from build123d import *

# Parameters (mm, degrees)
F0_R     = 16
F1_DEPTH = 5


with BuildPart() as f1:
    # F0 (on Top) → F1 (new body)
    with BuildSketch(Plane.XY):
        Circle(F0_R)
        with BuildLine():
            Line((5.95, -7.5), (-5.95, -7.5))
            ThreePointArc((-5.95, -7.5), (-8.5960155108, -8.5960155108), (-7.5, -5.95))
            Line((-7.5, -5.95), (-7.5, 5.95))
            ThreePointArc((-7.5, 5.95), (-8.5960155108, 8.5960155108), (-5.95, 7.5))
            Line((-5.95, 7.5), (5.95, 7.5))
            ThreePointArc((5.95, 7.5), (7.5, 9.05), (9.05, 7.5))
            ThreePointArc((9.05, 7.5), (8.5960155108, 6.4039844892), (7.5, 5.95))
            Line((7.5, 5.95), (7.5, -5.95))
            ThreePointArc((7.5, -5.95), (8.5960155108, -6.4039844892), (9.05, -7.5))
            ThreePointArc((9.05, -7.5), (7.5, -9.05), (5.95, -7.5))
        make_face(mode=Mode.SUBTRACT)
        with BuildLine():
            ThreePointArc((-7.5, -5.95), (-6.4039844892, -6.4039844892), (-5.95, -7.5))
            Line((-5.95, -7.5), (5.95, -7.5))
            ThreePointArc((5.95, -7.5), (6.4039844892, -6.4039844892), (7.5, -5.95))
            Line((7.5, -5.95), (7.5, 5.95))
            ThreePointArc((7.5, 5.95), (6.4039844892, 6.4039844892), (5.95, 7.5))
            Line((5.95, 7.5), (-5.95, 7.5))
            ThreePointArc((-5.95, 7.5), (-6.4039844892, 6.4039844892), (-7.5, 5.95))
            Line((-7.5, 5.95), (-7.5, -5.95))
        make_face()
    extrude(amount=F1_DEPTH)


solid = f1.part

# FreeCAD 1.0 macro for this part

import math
import FreeCAD as App
import Part
import Sketcher

V = App.Vector
Q = App.Units.Quantity

doc = App.newDocument("Part")
body = doc.addObject("PartDesign::Body", "Body")

# Sketch on XY plane
sketch1 = doc.addObject("Sketcher::SketchObject", "Sketch")
body.addObject(sketch1)
sketch1.AttachmentSupport = (doc.XY_Plane, [""])
sketch1.MapMode = "FlatFace"
sketch1.addGeometry([
    Part.Circle(V(0, 0, 0), V(0, 0, 1), 16),  # 0
    Part.ArcOfCircle(Part.Circle(V(7.5, -7.5, 0), V(0, 0, 1), 1.6), math.radians(180), math.radians(360)),  # 1
    Part.ArcOfCircle(Part.Circle(V(7.5, -7.5, 0), V(0, 0, 1), 1.6), math.radians(90), math.radians(180)),  # 2
    Part.ArcOfCircle(Part.Circle(V(7.5, -7.5, 0), V(0, 0, 1), 1.6), math.radians(0), math.radians(90)),  # 3
    Part.ArcOfCircle(Part.Circle(V(7.5, 7.5, 0), V(0, 0, 1), 1.6), math.radians(-90), math.radians(0)),  # 4
    Part.ArcOfCircle(Part.Circle(V(7.5, 7.5, 0), V(0, 0, 1), 1.6), math.radians(180), math.radians(270)),  # 5
    Part.ArcOfCircle(Part.Circle(V(7.5, 7.5, 0), V(0, 0, 1), 1.6), math.radians(0), math.radians(180)),  # 6
    Part.ArcOfCircle(Part.Circle(V(-7.5, 7.5, 0), V(0, 0, 1), 1.6), math.radians(0), math.radians(270)),  # 7
    Part.ArcOfCircle(Part.Circle(V(-7.5, 7.5, 0), V(0, 0, 1), 1.6), math.radians(-90), math.radians(0)),  # 8
    Part.ArcOfCircle(Part.Circle(V(-7.5, -7.5, 0), V(0, 0, 1), 1.6), math.radians(90), math.radians(360)),  # 9
    Part.ArcOfCircle(Part.Circle(V(-7.5, -7.5, 0), V(0, 0, 1), 1.6), math.radians(0), math.radians(90)),  # 10
], False)
sketch1.addConstraint([
    Sketcher.Constraint("Tangent", 1, 1, 2, 2),
    Sketcher.Constraint("Tangent", 2, 1, 3, 2),
    Sketcher.Constraint("Tangent", 3, 1, 1, 2),
    Sketcher.Constraint("Tangent", 4, 1, 5, 2),
    Sketcher.Constraint("Tangent", 5, 1, 6, 2),
    Sketcher.Constraint("Tangent", 6, 1, 4, 2),
    Sketcher.Constraint("Tangent", 7, 1, 8, 2),
    Sketcher.Constraint("Coincident", 8, 1, 7, 2),
    Sketcher.Constraint("Tangent", 9, 1, 10, 2),
    Sketcher.Constraint("Coincident", 10, 1, 9, 2),
    Sketcher.Constraint("Coincident", 0, 3, -1, 1),
    Sketcher.Constraint("Equal", 3, 4),
    Sketcher.Constraint("Equal", 6, 7),
    Sketcher.Constraint("Equal", 8, 9),
    Sketcher.Constraint("Symmetric", 1, 3, 7, 3, -1, 1),
    Sketcher.Constraint("Symmetric", 4, 3, 9, 3, -1, 1),
    Sketcher.Constraint("Symmetric", 4, 3, 7, 3, -2),
    Sketcher.Constraint("Horizontal", 10, 3, 1, 1),
    Sketcher.Constraint("Horizontal", 1, 1, 3, 1),
    Sketcher.Constraint("Horizontal", 8, 3, 5, 1),
    Sketcher.Constraint("Horizontal", 5, 1, 6, 1),
    Sketcher.Constraint("Horizontal", 6, 1, 7, 1),
    Sketcher.Constraint("Horizontal", 3, 1, 10, 1),
    Sketcher.Constraint("Vertical", 6, 3, 2, 1),
    Sketcher.Constraint("Vertical", 2, 1, 4, 1),
    Sketcher.Constraint("Vertical", 10, 3, 8, 1),
    Sketcher.Constraint("Vertical", 8, 1, 9, 1),
    Sketcher.Constraint("Diameter", 0, Q("32 mm")),
    Sketcher.Constraint("Radius", 1, Q("1.55 mm")),
    Sketcher.Constraint("DistanceY", 1, 3, 4, 3, Q("15 mm")),
    Sketcher.Constraint("DistanceX", 7, 3, 4, 3, Q("15 mm")),
])
pad1 = doc.addObject("PartDesign::Pad", "Pad")
body.addObject(pad1)
pad1.Profile = sketch1
pad1.Length = 5

doc.recompute()
